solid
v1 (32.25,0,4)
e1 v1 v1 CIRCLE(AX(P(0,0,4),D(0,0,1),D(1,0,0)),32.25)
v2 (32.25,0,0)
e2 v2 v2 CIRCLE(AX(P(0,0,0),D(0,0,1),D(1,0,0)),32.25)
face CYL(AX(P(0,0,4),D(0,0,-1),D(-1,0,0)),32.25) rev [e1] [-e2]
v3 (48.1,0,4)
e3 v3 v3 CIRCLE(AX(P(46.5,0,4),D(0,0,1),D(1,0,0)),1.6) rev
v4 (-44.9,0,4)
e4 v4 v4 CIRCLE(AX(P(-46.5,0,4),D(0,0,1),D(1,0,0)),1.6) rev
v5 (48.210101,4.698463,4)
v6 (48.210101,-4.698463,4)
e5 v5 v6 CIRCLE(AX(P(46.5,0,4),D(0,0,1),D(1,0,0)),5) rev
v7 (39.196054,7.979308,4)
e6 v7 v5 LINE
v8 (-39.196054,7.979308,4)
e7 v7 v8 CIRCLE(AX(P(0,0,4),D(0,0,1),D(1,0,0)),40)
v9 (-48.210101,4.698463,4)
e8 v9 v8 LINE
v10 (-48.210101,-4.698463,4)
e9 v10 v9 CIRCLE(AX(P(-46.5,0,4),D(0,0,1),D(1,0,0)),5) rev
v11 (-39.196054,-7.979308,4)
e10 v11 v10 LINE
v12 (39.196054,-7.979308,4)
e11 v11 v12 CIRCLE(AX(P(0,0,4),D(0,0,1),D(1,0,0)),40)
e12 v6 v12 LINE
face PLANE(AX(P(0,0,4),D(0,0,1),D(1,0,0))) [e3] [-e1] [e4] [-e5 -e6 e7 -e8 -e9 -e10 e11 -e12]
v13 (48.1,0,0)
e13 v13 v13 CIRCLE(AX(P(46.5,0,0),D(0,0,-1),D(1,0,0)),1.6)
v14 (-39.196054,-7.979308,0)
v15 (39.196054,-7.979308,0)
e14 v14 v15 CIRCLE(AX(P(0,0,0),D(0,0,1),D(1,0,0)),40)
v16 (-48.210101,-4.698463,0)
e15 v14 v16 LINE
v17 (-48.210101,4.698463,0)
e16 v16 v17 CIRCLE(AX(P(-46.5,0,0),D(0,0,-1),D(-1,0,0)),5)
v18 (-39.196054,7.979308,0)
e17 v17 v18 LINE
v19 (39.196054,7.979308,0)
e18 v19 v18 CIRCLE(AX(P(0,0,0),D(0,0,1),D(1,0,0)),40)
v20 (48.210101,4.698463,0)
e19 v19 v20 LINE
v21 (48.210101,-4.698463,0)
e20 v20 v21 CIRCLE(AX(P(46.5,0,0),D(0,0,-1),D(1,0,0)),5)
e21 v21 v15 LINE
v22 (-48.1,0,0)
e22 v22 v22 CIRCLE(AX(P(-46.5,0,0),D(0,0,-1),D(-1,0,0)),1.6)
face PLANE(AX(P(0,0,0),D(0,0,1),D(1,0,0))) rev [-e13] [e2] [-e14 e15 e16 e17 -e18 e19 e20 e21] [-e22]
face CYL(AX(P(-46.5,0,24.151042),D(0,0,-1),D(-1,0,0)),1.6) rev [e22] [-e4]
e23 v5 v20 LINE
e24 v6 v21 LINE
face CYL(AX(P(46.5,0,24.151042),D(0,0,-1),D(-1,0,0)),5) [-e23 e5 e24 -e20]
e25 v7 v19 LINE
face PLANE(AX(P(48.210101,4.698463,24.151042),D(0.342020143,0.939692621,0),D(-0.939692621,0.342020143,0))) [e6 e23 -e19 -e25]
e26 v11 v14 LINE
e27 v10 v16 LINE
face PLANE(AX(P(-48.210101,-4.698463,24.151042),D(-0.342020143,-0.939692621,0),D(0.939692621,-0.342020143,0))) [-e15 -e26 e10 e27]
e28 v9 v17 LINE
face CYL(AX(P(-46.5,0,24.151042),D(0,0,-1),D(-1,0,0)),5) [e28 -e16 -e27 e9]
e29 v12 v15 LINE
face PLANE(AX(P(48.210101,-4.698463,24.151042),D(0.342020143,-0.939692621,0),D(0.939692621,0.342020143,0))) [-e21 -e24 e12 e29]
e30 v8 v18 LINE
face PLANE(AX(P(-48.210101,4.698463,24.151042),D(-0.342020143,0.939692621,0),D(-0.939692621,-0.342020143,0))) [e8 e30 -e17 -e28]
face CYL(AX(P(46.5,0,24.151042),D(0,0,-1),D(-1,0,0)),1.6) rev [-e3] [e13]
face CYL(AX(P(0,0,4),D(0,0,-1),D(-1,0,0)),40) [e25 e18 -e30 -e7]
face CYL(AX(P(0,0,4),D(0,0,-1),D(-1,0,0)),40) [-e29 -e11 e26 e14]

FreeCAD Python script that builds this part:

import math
import FreeCAD as App
import Part
import Sketcher

V = App.Vector
Q = App.Units.Quantity

doc = App.newDocument("Part")
body = doc.addObject("PartDesign::Body", "Body")

# Sketch on XY plane
sketch1 = body.newObject("Sketcher::SketchObject", "Sketch")
sketch1.AttachmentSupport = (doc.getObject("XY_Plane"), [""])
sketch1.MapMode = "FlatFace"
sketch1.addGeometry([
    Part.Circle(V(0, 0, 0), V(0, 0, 1), 40),
    Part.Circle(V(0, 0, 0), V(0, 0, 1), 32.25),
], False)
sketch1.addConstraint([
    Sketcher.Constraint("Coincident", 0, 3, -1, 1),
    Sketcher.Constraint("Coincident", 1, 3, -1, 1),
    Sketcher.Constraint("Diameter", 0, 80.0),
    Sketcher.Constraint("Diameter", 1, 64.5),
])
pad1 = body.newObject("PartDesign::Pad", "Pad")
pad1.Profile = sketch1
pad1.Length = 4

# Sketch on XY plane
sketch2 = body.newObject("Sketcher::SketchObject", "Sketch001")
sketch2.AttachmentSupport = (doc.getObject("XY_Plane"), [""])
sketch2.MapMode = "FlatFace"
sketch2.addGeometry([
    Part.LineSegment(V(-48.210101, 4.698463, 0), V(-39.196054, 7.979308, 0)),  # 0
    Part.ArcOfCircle(Part.Circle(V(0, 0, 0), V(0, 0, 1), 40), math.radians(168.49329), math.radians(191.50671)),  # 1
    Part.LineSegment(V(-39.196054, -7.979308, 0), V(-48.210101, -4.698463, 0)),  # 2
    Part.ArcOfCircle(Part.Circle(V(-46.5, 0, 0), V(0, 0, 1), 5), math.radians(110), math.radians(250)),  # 3
    Part.Circle(V(-46.5, 0, 0), V(0, 0, 1), 1.6),  # 4
    Part.LineSegment(V(48.210101, -4.698463, 0), V(39.196054, -7.979308, 0)),  # 5
    Part.ArcOfCircle(Part.Circle(V(0, 0, 0), V(0, 0, 1), 40), math.radians(-11.50671), math.radians(11.50671)),  # 6
    Part.LineSegment(V(39.196054, 7.979308, 0), V(48.210101, 4.698463, 0)),  # 7
    Part.ArcOfCircle(Part.Circle(V(46.5, 0, 0), V(0, 0, 1), 5), math.radians(-70), math.radians(70)),  # 8
    Part.Circle(V(46.5, 0, 0), V(0, 0, 1), 1.6),  # 9
], False)
sketch2.addConstraint([
    Sketcher.Constraint("Coincident", 0, 2, 1, 1),
    Sketcher.Constraint("Coincident", 1, 2, 2, 1),
    Sketcher.Constraint("Tangent", 2, 2, 3, 2),
    Sketcher.Constraint("Tangent", 3, 1, 0, 1),
    Sketcher.Constraint("Coincident", 5, 2, 6, 1),
    Sketcher.Constraint("Coincident", 6, 2, 7, 1),
    Sketcher.Constraint("Tangent", 7, 2, 8, 2),
    Sketcher.Constraint("Tangent", 8, 1, 5, 1),
    Sketcher.Constraint("Coincident", 1, 3, -1, 1),
    Sketcher.Constraint("Coincident", 6, 3, -1, 1),
    Sketcher.Constraint("Coincident", 4, 3, 3, 3),
    Sketcher.Constraint("Coincident", 9, 3, 8, 3),
    Sketcher.Constraint("Equal", 1, 6),
    Sketcher.Constraint("Equal", 3, 8),
    Sketcher.Constraint("Equal", 4, 9),
    Sketcher.Constraint("Symmetric", 3, 3, 8, 3, -1, 1),
    Sketcher.Constraint("Symmetric", 3, 1, 7, 2, -2),
    Sketcher.Constraint("Parallel", 0, 5),
    Sketcher.Constraint("Parallel", 2, 7),
    Sketcher.Constraint("Radius", 1, 40.0),
    Sketcher.Constraint("Radius", 3, 5.0),
    Sketcher.Constraint("Diameter", 4, 3.2),
    Sketcher.Constraint("Angle", 0, Q("20 deg")),
    Sketcher.Constraint("DistanceX", 3, 3, 8, 3, 93.0),
])
pad2 = body.newObject("PartDesign::Pad", "Pad001")
pad2.Profile = sketch2
pad2.Length = 4

doc.recompute()
